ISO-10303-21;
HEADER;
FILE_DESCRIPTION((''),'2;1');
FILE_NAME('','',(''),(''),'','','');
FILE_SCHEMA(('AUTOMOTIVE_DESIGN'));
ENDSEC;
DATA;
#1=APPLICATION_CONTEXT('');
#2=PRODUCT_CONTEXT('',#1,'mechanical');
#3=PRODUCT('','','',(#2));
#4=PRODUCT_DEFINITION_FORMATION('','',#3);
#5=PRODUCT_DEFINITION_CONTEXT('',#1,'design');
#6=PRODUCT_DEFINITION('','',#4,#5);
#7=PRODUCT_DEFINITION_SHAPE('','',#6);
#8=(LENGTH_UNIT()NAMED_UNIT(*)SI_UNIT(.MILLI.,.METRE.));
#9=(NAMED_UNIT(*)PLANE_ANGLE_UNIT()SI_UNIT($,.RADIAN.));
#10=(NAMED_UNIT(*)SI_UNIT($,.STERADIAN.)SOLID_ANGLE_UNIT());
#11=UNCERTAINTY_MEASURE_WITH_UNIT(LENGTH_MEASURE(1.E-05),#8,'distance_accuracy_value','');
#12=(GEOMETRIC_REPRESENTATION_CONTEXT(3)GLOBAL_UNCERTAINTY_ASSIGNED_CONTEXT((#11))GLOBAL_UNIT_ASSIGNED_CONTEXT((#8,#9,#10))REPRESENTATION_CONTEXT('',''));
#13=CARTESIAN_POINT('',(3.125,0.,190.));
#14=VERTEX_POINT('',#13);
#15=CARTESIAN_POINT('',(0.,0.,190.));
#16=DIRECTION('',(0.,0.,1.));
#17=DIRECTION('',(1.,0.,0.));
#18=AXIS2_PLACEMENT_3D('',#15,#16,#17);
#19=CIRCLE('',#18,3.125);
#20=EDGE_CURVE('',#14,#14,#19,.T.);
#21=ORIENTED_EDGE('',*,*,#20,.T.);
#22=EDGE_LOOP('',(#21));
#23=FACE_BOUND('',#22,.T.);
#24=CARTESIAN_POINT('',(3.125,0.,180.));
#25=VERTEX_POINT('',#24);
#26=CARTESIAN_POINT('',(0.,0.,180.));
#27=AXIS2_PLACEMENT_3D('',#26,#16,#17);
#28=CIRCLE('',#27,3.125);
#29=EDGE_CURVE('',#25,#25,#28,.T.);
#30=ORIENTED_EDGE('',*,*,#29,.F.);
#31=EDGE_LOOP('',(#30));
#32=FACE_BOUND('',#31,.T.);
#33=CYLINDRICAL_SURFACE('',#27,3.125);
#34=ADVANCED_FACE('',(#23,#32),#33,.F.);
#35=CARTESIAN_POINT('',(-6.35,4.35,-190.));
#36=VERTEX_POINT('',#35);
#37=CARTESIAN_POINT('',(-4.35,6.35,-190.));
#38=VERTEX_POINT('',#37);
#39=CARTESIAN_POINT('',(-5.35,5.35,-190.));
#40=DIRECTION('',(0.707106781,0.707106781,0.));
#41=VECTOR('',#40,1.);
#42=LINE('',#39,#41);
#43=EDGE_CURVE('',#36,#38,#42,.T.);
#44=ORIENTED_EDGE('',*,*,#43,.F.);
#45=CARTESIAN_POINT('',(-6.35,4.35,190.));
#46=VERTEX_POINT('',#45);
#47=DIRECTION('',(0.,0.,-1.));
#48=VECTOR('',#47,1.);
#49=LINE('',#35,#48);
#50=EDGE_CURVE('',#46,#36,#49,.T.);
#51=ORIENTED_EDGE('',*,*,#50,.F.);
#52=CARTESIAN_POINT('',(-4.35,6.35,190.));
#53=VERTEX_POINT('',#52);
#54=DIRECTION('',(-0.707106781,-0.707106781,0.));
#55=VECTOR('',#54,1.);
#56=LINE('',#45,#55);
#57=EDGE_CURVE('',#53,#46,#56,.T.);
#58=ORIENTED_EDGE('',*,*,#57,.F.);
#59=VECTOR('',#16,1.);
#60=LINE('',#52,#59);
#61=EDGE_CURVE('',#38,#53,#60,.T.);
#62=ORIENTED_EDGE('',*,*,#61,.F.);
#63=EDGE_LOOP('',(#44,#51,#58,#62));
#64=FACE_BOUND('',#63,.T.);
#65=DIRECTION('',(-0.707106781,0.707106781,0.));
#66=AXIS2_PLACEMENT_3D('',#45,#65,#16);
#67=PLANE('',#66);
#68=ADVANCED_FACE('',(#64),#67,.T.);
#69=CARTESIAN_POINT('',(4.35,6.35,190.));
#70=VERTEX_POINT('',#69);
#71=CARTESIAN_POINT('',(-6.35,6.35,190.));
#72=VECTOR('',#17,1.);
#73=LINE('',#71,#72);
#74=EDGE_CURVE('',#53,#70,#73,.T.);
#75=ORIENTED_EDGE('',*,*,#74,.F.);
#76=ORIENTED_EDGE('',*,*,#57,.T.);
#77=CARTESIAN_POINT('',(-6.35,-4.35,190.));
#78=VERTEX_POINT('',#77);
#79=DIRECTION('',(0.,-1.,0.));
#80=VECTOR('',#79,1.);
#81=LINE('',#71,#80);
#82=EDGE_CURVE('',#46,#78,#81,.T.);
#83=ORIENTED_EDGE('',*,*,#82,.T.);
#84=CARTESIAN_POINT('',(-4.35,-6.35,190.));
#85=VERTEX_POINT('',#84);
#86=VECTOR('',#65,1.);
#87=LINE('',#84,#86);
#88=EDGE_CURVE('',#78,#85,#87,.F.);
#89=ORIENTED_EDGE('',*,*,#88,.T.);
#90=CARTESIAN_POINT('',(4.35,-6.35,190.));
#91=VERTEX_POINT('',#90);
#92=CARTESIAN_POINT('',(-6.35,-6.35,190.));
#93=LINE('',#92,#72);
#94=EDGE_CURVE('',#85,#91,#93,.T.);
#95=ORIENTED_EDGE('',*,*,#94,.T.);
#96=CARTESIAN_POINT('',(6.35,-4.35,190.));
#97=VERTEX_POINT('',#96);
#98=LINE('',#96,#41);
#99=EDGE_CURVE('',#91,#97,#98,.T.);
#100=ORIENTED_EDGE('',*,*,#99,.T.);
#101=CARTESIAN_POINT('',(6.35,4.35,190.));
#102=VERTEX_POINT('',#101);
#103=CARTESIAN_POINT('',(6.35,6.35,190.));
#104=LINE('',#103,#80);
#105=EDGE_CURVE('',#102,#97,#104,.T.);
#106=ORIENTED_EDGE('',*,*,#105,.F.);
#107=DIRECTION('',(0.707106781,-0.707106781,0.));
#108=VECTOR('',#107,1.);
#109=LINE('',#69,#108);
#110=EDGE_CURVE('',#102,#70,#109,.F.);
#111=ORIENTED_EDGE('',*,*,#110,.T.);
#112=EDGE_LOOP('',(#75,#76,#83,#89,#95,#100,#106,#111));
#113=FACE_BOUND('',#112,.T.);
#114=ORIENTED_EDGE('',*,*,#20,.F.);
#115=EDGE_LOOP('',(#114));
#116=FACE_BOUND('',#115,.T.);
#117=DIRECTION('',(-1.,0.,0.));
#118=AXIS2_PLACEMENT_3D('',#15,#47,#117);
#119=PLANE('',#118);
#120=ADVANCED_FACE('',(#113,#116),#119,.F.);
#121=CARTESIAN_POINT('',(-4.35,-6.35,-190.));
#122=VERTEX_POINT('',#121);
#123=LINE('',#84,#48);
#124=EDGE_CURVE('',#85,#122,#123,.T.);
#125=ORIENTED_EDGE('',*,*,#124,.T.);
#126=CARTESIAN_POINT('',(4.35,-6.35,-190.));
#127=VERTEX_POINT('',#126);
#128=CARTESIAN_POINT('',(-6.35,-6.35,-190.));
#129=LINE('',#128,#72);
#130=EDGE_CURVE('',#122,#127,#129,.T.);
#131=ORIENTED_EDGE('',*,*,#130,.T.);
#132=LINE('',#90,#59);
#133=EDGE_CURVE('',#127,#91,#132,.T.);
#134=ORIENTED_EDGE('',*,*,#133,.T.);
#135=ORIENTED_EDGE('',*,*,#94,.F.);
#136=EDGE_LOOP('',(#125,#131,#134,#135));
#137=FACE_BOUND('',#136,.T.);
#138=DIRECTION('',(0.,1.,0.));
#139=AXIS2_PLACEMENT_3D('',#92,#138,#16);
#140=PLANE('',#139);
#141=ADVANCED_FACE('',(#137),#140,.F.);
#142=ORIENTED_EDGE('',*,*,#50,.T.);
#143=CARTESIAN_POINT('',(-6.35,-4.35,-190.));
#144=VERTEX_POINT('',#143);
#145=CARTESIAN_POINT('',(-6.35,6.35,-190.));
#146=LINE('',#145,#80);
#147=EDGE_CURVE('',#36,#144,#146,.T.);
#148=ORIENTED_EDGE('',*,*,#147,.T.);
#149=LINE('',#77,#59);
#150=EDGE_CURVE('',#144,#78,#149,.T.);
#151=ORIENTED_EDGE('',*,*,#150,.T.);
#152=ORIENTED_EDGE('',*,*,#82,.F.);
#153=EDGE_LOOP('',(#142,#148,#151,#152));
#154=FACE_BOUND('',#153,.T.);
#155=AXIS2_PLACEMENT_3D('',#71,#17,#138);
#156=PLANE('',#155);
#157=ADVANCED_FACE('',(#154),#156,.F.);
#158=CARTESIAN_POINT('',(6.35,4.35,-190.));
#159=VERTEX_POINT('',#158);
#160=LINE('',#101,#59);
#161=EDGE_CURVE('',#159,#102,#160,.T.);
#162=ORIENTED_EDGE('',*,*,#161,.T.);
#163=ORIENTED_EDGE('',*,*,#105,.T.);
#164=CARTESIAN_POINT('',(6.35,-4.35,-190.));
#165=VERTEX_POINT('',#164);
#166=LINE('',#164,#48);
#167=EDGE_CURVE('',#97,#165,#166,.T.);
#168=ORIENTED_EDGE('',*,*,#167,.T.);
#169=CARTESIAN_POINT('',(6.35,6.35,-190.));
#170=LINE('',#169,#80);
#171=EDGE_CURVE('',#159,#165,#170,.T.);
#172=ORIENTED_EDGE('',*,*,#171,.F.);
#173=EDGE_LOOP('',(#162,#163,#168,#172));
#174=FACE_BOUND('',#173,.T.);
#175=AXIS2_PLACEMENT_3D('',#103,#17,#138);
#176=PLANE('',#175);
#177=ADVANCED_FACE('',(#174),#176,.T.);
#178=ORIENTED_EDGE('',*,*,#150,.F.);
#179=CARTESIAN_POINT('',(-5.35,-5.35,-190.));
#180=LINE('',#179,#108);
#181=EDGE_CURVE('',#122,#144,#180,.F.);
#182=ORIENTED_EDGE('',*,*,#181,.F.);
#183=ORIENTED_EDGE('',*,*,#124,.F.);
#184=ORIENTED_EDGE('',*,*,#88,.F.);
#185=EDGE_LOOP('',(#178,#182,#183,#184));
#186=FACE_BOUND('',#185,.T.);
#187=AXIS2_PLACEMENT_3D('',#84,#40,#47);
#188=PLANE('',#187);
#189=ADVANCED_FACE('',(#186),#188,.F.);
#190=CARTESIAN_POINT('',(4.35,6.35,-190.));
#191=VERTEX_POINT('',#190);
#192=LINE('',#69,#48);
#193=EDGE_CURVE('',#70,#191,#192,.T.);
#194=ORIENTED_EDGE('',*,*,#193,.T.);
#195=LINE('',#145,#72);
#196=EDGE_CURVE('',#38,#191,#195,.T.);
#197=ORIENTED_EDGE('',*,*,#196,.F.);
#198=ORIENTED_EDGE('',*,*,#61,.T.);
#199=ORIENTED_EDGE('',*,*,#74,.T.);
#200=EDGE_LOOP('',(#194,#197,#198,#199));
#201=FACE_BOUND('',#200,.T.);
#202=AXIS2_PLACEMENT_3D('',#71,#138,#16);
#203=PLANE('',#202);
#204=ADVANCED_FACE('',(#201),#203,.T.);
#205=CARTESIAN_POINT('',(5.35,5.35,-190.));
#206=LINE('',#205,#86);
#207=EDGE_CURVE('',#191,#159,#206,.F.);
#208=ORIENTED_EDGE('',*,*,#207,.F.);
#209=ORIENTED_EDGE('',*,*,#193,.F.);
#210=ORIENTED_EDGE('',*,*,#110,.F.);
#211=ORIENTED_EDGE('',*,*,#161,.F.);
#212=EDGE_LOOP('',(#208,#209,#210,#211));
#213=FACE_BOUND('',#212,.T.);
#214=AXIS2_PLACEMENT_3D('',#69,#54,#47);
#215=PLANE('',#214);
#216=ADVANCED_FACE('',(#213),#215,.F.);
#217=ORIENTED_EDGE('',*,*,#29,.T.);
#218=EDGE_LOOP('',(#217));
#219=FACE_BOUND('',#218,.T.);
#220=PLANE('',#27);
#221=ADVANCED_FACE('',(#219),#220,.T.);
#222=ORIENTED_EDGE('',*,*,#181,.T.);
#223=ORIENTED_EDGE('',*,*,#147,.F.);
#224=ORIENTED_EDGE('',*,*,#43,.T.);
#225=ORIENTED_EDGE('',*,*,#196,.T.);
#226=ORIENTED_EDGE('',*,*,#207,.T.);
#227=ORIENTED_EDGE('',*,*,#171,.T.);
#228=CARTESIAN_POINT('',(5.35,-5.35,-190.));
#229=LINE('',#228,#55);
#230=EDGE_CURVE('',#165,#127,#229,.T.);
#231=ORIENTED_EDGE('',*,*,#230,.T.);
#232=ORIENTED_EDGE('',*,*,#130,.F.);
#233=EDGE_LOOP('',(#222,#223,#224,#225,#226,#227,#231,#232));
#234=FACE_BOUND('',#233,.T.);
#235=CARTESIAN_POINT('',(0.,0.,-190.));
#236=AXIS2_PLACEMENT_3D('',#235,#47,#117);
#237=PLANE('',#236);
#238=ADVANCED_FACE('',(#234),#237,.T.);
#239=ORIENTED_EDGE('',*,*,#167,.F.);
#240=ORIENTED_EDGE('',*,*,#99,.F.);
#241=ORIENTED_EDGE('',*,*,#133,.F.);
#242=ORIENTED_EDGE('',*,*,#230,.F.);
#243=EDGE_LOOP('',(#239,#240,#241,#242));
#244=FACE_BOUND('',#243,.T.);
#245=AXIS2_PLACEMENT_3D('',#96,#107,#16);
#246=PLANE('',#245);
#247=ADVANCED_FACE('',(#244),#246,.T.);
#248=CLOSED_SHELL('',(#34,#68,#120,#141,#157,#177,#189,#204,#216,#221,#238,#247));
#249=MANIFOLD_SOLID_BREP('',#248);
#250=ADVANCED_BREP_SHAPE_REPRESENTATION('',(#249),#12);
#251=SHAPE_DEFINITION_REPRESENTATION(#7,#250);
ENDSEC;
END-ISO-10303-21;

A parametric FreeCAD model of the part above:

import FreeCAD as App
import Part
import Sketcher
Q = App.Units.Quantity


def edges_at(feature, points):
    """Names of the edges that pass closest to the given points."""
    edges = feature.Shape.Edges
    near = lambda p: min(range(len(edges)), key=lambda i: edges[i].distToShape(Part.Vertex(*p))[0])
    return sorted({f"Edge{near(p) + 1}" for p in points})


def add_polygon(sketch, points):
    """Adds a closed chain of lines whose ends are joined by coincident constraints."""
    first, n = sketch.GeometryCount, len(points)
    for a, b in zip(points, points[1:] + points[:1]):
        sketch.addGeometry(Part.LineSegment(App.Vector(*a, 0), App.Vector(*b, 0)), False)
    for i in range(n):
        sketch.addConstraint(Sketcher.Constraint("Coincident", first + i, 2, first + (i + 1) % n, 1))

doc = App.newDocument("Part")
body = doc.addObject("PartDesign::Body", "Body")

sketch1 = doc.addObject("Sketcher::SketchObject", "Sketch")
body.addObject(sketch1)
sketch1.AttachmentSupport = (doc.XY_Plane, [""])
sketch1.MapMode = "FlatFace"
add_polygon(sketch1, [(-6, 6), (-6, -6), (6, -6), (6, 6)])
sketch1.addConstraint([
    Sketcher.Constraint("Vertical", 0),
    Sketcher.Constraint("Horizontal", 1),
    Sketcher.Constraint("Vertical", 2),
    Sketcher.Constraint("Horizontal", 3),
    Sketcher.Constraint("Symmetric", 0, 2, 2, 2, -1, 1),
    Sketcher.Constraint("Equal", 3, 0),
    Sketcher.Constraint("DistanceX", 1, 1, 1, 2, Q("12.7 mm")),
])
pad1 = doc.addObject("PartDesign::Pad", "Pad")
body.addObject(pad1)
pad1.Profile = sketch1
pad1.Length = 380
pad1.Midplane = True

sketch2 = doc.addObject("Sketcher::SketchObject", "Sketch001")
body.addObject(sketch2)
sketch2.AttachmentSupport = (doc.XY_Plane, [""])
sketch2.MapMode = "FlatFace"
sketch2.AttachmentOffset = App.Placement(App.Vector(0, 0, 190), App.Rotation())
sketch2.addGeometry(Part.Circle(App.Vector(0, 0, 0), App.Vector(0, 0, 1), 3.1), False)
sketch2.addConstraint([
    Sketcher.Constraint("Coincident", 0, 3, -1, 1),
    Sketcher.Constraint("Diameter", 0, Q("6.25 mm")),
])
pocket1 = doc.addObject("PartDesign::Pocket", "Pocket")
body.addObject(pocket1)
pocket1.Profile = sketch2
pocket1.Length = 10
doc.recompute()

chamfer = doc.addObject("PartDesign::Chamfer", "Chamfer")
body.addObject(chamfer)
chamfer.Base = (pocket1, edges_at(pocket1, [
    (-6.35, 6.35, 0),
    (-6.35, -6.35, 0),
    (6.35, -6.35, 0),
    (6.35, 6.35, 0),
]))
chamfer.Size = 2

doc.recompute()
